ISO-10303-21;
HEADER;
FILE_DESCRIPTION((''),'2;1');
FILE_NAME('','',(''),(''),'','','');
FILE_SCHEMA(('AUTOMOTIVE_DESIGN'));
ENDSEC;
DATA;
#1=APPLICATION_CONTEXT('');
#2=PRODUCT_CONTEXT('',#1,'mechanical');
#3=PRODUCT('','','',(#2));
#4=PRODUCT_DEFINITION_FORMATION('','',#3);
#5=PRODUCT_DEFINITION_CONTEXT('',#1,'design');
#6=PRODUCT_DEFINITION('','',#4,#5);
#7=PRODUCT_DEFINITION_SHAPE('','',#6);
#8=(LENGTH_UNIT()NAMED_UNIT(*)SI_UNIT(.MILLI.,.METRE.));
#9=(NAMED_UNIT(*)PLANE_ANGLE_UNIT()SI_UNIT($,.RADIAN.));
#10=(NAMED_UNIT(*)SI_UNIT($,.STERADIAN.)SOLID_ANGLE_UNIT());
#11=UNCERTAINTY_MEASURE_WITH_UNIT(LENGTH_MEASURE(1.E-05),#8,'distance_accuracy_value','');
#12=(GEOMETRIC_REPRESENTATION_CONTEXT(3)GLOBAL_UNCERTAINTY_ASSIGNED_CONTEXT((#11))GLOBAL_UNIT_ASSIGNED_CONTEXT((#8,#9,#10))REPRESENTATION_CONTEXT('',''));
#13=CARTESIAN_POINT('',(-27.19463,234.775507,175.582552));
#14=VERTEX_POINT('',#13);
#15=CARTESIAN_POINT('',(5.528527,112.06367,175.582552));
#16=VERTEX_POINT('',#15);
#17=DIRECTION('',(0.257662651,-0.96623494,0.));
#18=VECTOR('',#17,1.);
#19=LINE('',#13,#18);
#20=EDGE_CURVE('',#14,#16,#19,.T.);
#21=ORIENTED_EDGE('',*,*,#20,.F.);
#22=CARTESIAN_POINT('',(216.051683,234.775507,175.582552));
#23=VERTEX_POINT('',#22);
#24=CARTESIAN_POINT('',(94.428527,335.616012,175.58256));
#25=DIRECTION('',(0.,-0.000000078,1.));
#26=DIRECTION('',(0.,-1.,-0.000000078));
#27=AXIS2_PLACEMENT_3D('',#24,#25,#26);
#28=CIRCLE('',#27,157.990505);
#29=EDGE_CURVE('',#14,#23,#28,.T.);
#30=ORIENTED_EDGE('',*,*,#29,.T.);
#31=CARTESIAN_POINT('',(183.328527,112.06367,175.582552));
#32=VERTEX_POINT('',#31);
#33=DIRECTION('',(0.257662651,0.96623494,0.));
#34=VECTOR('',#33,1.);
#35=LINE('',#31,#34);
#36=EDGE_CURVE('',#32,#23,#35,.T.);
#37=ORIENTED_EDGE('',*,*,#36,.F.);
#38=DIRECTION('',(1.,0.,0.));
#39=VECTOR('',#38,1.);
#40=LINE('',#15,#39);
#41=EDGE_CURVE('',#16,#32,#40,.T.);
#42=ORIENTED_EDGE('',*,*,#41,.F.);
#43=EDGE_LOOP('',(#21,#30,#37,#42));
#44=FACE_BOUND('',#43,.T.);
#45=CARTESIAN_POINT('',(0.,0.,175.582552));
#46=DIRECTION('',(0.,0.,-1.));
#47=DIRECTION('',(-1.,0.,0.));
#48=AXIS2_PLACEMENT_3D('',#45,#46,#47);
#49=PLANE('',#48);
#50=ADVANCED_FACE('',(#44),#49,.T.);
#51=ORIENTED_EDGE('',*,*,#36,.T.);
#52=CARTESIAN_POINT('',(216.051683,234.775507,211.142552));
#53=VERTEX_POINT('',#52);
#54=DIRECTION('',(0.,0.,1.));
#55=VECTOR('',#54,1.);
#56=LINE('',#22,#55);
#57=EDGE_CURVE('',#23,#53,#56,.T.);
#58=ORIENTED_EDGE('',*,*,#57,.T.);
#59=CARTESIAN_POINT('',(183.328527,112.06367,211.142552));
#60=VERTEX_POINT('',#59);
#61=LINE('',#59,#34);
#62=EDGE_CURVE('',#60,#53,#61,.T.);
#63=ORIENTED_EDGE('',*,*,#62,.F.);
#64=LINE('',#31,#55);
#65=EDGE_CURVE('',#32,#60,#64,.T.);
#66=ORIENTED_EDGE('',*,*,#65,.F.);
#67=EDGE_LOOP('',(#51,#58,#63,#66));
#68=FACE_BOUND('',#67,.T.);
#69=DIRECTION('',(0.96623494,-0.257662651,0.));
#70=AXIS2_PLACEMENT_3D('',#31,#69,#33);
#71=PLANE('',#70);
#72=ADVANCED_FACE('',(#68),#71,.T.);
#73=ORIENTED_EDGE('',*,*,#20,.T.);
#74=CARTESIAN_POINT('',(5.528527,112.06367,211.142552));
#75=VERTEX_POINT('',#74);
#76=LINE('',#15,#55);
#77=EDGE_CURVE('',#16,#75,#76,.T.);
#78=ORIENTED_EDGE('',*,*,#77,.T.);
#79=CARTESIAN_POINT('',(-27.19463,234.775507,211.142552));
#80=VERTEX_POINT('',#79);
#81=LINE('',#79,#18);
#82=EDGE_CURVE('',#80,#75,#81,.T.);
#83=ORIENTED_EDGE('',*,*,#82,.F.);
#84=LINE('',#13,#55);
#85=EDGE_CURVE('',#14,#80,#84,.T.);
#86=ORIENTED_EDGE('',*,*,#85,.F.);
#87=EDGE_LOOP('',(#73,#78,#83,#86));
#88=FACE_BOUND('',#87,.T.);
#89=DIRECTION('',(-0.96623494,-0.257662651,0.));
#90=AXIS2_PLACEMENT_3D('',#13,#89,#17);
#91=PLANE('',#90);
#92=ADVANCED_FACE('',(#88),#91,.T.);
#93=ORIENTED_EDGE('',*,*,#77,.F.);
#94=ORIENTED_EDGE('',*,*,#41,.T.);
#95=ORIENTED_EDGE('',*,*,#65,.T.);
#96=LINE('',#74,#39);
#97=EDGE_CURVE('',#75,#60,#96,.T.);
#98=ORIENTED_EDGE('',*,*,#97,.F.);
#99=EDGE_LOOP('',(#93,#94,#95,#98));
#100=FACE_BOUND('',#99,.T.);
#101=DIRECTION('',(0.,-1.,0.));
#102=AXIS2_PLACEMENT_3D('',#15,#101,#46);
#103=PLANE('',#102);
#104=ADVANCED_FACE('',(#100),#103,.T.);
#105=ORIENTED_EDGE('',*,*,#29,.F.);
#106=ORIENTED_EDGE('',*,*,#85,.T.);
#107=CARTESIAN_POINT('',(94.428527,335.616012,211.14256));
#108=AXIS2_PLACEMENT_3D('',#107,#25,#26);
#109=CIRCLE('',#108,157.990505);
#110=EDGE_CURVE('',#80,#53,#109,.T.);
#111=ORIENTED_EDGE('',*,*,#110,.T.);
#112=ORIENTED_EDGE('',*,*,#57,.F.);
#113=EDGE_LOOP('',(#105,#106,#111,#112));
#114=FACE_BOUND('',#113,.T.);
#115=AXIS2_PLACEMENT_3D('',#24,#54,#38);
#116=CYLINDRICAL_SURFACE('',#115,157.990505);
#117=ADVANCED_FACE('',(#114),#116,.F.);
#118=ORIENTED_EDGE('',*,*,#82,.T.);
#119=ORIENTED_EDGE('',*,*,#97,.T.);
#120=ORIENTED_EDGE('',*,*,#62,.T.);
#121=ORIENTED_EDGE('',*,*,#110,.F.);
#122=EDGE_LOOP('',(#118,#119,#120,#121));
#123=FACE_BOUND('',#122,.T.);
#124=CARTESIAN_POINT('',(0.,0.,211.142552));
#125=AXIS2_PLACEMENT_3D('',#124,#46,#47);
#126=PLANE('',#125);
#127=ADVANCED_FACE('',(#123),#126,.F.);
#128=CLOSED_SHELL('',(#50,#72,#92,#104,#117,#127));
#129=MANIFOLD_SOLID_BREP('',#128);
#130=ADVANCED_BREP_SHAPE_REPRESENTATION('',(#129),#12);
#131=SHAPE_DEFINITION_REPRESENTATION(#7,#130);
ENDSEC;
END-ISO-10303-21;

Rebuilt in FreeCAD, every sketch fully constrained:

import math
import FreeCAD as App
import Part
import Sketcher
from FreeCAD import Vector
Q = App.Units.Quantity

doc = App.newDocument("Part")
body = doc.addObject("PartDesign::Body", "Body")

# Sketch on XY plane
sketch1 = body.newObject("Sketcher::SketchObject", "Sketch")
sketch1.AttachmentSupport = (doc.getObject("XY_Plane"), [""])
sketch1.MapMode = "FlatFace"
sketch1.AttachmentOffset = App.Placement(Vector(0, 0, 175.582552), App.Rotation())
sketch1.addGeometry([
    Part.LineSegment(Vector(-27, 235, 0), Vector(6, 112, 0)),
    Part.LineSegment(Vector(6, 112, 0), Vector(183, 112, 0)),
    Part.LineSegment(Vector(183, 112, 0), Vector(216, 235, 0)),
    Part.ArcOfCircle(Part.Circle(Vector(94, 336, 0), Vector(0, 0, 1), 158), math.radians(-140), math.radians(-40)),
], False)
sketch1.addConstraint([
    Sketcher.Constraint("Coincident", 0, 2, 1, 1),
    Sketcher.Constraint("Coincident", 1, 2, 2, 1),
    Sketcher.Constraint("Coincident", 2, 2, 3, 2),
    Sketcher.Constraint("Coincident", 3, 1, 0, 1),
    Sketcher.Constraint("Horizontal", 1),
    Sketcher.Constraint("Horizontal", 2, 2, 3, 1),
    Sketcher.Constraint("Equal", 0, 2),
    Sketcher.Constraint("DistanceX", 1, 1, 1, 2, Q("7 in")),
    Sketcher.Constraint("Distance", 0, Q("5 in")),
    Sketcher.Constraint("Radius", 3, Q("157.990505 mm")),
    Sketcher.Constraint("DistanceY", -1, 1, 0, 2, Q("112.06367 mm")),
    Sketcher.Constraint("DistanceX", 3, 1, -1, 1, Q("27.19463 mm")),
    Sketcher.Constraint("DistanceX", -1, 1, 3, 3, Q("94.428527 mm")),
])
pad1 = body.newObject("PartDesign::Pad", "Pad")
pad1.Profile = sketch1
pad1.Length = Q("1.4 in")

doc.recompute()
